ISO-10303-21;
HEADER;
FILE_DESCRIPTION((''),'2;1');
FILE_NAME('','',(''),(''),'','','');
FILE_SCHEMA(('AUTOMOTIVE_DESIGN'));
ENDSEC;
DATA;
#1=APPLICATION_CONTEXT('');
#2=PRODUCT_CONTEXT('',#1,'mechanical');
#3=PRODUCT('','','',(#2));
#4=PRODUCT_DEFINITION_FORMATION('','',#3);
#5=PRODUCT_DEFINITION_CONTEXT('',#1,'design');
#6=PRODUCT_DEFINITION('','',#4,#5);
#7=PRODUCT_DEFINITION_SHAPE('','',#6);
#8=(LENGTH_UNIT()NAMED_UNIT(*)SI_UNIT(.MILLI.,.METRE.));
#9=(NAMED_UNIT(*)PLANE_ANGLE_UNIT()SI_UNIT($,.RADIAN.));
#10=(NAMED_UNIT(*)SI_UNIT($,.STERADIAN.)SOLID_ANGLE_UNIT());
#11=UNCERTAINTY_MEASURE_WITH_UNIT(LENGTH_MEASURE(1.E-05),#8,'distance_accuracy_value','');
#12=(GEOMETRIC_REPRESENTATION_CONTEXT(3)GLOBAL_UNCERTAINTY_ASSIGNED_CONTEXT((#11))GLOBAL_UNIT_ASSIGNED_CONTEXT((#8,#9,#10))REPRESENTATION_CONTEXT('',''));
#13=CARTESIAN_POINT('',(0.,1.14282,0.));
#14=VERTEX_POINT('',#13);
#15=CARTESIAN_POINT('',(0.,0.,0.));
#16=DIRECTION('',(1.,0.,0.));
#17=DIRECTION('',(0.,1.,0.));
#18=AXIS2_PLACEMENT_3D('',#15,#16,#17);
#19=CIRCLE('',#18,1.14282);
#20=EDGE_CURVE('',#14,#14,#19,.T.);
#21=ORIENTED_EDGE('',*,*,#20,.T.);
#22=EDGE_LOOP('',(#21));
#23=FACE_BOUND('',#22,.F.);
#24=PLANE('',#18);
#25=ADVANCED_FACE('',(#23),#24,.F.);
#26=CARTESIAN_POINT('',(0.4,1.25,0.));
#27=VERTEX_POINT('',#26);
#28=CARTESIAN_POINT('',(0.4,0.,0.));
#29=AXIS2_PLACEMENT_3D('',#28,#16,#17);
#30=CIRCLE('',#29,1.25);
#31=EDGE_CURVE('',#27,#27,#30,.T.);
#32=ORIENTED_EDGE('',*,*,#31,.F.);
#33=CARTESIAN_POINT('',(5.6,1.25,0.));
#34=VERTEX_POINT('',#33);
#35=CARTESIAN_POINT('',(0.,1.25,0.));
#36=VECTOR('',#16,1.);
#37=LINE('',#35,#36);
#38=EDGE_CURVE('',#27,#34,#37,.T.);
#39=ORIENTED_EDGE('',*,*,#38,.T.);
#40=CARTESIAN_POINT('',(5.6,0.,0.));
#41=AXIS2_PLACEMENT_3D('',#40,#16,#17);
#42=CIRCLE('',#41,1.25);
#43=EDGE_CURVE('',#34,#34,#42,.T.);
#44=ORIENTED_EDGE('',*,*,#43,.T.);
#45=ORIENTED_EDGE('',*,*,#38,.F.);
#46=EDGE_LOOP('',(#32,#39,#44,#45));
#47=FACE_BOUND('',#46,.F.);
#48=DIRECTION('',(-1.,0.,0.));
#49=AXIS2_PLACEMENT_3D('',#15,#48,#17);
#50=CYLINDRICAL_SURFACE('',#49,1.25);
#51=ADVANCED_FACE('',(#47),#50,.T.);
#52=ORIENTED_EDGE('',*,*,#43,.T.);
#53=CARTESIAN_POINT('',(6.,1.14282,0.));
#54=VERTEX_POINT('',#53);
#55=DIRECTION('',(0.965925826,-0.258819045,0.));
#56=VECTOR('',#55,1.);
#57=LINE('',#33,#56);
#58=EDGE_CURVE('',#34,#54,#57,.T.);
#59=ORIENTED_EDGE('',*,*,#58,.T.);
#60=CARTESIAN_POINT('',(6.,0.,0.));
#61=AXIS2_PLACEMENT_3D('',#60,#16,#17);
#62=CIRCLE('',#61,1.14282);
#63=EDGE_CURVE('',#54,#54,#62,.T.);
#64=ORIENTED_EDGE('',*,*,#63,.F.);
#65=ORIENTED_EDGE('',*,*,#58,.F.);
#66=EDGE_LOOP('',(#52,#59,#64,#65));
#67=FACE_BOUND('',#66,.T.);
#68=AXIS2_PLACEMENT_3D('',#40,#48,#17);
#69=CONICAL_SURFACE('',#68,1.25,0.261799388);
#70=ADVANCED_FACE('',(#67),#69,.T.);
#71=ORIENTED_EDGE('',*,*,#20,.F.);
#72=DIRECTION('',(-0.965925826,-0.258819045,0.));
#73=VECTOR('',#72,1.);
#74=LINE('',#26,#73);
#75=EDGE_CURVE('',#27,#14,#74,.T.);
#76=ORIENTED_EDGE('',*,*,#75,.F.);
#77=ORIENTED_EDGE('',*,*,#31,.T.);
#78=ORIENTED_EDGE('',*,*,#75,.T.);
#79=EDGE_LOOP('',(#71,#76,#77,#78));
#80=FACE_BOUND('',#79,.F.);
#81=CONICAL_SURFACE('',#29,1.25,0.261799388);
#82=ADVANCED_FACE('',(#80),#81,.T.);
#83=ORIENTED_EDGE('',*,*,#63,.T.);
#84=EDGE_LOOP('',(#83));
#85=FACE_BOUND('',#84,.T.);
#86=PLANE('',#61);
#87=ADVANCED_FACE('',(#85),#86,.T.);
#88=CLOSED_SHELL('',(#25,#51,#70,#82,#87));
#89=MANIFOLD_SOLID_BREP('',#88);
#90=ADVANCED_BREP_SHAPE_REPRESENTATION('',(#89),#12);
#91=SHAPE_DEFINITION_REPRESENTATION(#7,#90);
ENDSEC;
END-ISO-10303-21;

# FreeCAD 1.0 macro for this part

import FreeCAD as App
import Part
import Sketcher
from FreeCAD import Vector


def edges_at(feature, points):
    """Names of the edges that pass closest to the given points."""
    edges = feature.Shape.Edges
    near = lambda p: min(range(len(edges)), key=lambda i: edges[i].distToShape(Part.Vertex(*p))[0])
    return sorted({f"Edge{near(p) + 1}" for p in points})

doc = App.newDocument("Part")
params = doc.addObject("Spreadsheet::Sheet", "Params")
for row, (alias, value) in enumerate([
    ("sketch1_diameter", "2.5 mm"),
    ("pad1_length", "6 mm"),
    ("chamfer_size", "0.4 mm"),
    ("chamfer2_size", "0.4 mm"),
], start=1):
    params.set(f"A{row}", alias)
    params.set(f"B{row}", "=" + value)
    params.setAlias(f"B{row}", alias)

body = doc.addObject("PartDesign::Body", "Body")

sketch1 = body.newObject("Sketcher::SketchObject", "Sketch")
sketch1.AttachmentSupport = (doc.getObject("YZ_Plane"), [""])
sketch1.MapMode = "FlatFace"
sketch1.addGeometry(Part.Circle(Vector(0, 0, 0), Vector(0, 0, 1), 1.25), False)
sketch1.addConstraint([
    Sketcher.Constraint("Coincident", 0, 3, -1, 1),
    Sketcher.Constraint("Diameter", 0, 2.5),
])
sketch1.setExpression("Constraints[1]", "Params.sketch1_diameter")
pad1 = body.newObject("PartDesign::Pad", "Pad")
pad1.Profile = sketch1
pad1.setExpression("Length", "Params.pad1_length")
doc.recompute()

chamfer = body.newObject("PartDesign::Chamfer", "Chamfer")
chamfer.Base = (pad1, edges_at(pad1, [(0, -1.25, 0)]))
chamfer.ChamferType = "Distance and Angle"
chamfer.setExpression("Size", "Params.chamfer_size")
chamfer.Angle = 15
doc.recompute()

chamfer2 = body.newObject("PartDesign::Chamfer", "Chamfer001")
chamfer2.Base = (chamfer, edges_at(chamfer, [(6, -1.25, 0)]))
chamfer2.ChamferType = "Distance and Angle"
chamfer2.setExpression("Size", "Params.chamfer2_size")
chamfer2.Angle = 15

doc.recompute()
